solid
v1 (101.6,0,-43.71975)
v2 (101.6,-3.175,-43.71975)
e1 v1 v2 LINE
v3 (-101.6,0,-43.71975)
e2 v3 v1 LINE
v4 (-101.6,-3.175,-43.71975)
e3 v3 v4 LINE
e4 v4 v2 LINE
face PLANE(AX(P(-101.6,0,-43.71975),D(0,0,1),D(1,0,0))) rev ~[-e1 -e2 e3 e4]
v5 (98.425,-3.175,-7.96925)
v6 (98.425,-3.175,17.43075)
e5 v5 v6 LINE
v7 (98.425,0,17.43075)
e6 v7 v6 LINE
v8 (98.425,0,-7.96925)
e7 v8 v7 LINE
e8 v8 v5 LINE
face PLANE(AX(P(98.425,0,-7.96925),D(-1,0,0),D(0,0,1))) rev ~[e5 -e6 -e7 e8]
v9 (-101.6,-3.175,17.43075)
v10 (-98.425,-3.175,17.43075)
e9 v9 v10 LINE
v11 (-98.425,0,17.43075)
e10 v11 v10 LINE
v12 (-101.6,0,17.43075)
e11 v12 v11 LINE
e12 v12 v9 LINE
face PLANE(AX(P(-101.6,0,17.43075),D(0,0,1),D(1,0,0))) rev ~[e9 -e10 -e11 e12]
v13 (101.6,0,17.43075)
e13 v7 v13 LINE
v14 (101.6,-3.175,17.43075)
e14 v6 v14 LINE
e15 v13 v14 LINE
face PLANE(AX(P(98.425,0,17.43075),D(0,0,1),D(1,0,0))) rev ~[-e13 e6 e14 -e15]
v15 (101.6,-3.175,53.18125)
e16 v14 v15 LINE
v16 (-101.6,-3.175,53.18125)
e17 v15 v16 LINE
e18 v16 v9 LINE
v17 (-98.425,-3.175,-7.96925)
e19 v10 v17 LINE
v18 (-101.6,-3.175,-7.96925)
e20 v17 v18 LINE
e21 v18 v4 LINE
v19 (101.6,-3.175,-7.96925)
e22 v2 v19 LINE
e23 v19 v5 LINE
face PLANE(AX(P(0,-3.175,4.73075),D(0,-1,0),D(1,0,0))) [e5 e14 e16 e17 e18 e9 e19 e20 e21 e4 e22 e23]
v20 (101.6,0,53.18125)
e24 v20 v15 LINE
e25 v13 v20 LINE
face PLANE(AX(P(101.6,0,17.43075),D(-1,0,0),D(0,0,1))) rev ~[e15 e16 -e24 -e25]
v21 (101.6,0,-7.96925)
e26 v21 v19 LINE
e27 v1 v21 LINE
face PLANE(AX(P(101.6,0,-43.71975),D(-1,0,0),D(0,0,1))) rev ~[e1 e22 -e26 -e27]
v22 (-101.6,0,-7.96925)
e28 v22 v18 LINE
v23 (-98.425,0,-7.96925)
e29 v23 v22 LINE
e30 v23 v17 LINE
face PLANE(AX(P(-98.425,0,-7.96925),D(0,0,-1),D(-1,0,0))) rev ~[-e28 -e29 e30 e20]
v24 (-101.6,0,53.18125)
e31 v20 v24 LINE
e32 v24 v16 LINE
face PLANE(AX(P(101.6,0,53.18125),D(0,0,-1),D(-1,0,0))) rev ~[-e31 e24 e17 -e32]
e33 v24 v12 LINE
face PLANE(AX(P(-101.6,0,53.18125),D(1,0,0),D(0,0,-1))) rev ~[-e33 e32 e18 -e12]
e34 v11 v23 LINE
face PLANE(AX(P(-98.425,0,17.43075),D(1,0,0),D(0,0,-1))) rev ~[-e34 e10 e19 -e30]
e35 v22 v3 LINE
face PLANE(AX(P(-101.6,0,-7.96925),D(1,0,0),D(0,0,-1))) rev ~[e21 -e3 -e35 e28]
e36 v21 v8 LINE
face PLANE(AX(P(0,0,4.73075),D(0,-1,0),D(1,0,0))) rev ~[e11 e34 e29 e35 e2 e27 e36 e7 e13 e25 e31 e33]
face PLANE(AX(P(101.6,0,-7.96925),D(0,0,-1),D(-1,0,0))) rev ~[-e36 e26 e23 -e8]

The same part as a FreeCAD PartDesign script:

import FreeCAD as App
import Part
import Sketcher
from FreeCAD import Vector
Q = App.Units.Quantity

doc = App.newDocument("Part")
params = doc.addObject("Spreadsheet::Sheet", "Params")
for row, (alias, value) in enumerate([
    ("sketch1_width", "8 in"),
    ("sketch1_height", "1 in"),
    ("sketch1_width2", "0.125 in"),
    ("pad1_length", "0.125 in"),
], start=1):
    params.set(f"A{row}", alias)
    params.set(f"B{row}", "=" + value)
    params.setAlias(f"B{row}", alias)

body = doc.addObject("PartDesign::Body", "Body")

# Sketch on XZ plane
sketch1 = body.newObject("Sketcher::SketchObject", "Sketch")
sketch1.AttachmentSupport = (doc.getObject("XZ_Plane"), [""])
sketch1.MapMode = "FlatFace"
sketch1.addGeometry([
    Part.LineSegment(Vector(-101.6, 53.18125, 0), Vector(-101.6, 17.43075, 0)),  # 0
    Part.LineSegment(Vector(-101.6, 17.43075, 0), Vector(-98.425, 17.43075, 0)),  # 1
    Part.LineSegment(Vector(-98.425, 17.43075, 0), Vector(-98.425, -7.96925, 0)),  # 2
    Part.LineSegment(Vector(-98.425, -7.96925, 0), Vector(-101.6, -7.96925, 0)),  # 3
    Part.LineSegment(Vector(-101.6, -7.96925, 0), Vector(-101.6, -43.71975, 0)),  # 4
    Part.LineSegment(Vector(-101.6, -43.71975, 0), Vector(101.6, -43.71975, 0)),  # 5
    Part.LineSegment(Vector(101.6, -43.71975, 0), Vector(101.6, -7.96925, 0)),  # 6
    Part.LineSegment(Vector(101.6, -7.96925, 0), Vector(98.425, -7.96925, 0)),  # 7
    Part.LineSegment(Vector(98.425, -7.96925, 0), Vector(98.425, 17.43075, 0)),  # 8
    Part.LineSegment(Vector(98.425, 17.43075, 0), Vector(101.6, 17.43075, 0)),  # 9
    Part.LineSegment(Vector(101.6, 17.43075, 0), Vector(101.6, 53.18125, 0)),  # 10
    Part.LineSegment(Vector(101.6, 53.18125, 0), Vector(-101.6, 53.18125, 0)),  # 11
], False)
sketch1.addConstraint([
    Sketcher.Constraint("Coincident", 0, 2, 1, 1),
    Sketcher.Constraint("Coincident", 1, 2, 2, 1),
    Sketcher.Constraint("Coincident", 2, 2, 3, 1),
    Sketcher.Constraint("Coincident", 3, 2, 4, 1),
    Sketcher.Constraint("Coincident", 4, 2, 5, 1),
    Sketcher.Constraint("Coincident", 5, 2, 6, 1),
    Sketcher.Constraint("Coincident", 6, 2, 7, 1),
    Sketcher.Constraint("Coincident", 7, 2, 8, 1),
    Sketcher.Constraint("Coincident", 8, 2, 9, 1),
    Sketcher.Constraint("Coincident", 9, 2, 10, 1),
    Sketcher.Constraint("Coincident", 10, 2, 11, 1),
    Sketcher.Constraint("Coincident", 11, 2, 0, 1),
    Sketcher.Constraint("Vertical", 0),
    Sketcher.Constraint("Horizontal", 1),
    Sketcher.Constraint("Vertical", 2),
    Sketcher.Constraint("Horizontal", 3),
    Sketcher.Constraint("Vertical", 4),
    Sketcher.Constraint("Horizontal", 5),
    Sketcher.Constraint("Vertical", 6),
    Sketcher.Constraint("Horizontal", 7),
    Sketcher.Constraint("Vertical", 8),
    Sketcher.Constraint("Horizontal", 9),
    Sketcher.Constraint("Vertical", 10),
    Sketcher.Constraint("Horizontal", 11),
    Sketcher.Constraint("Symmetric", 3, 2, 6, 2, -2),
    Sketcher.Constraint("Symmetric", 1, 2, 8, 2, -2),
    Sketcher.Constraint("Vertical", 0, 2, 3, 2),
    Sketcher.Constraint("Vertical", 6, 2, 9, 2),
    Sketcher.Constraint("Equal", 0, 4),
    Sketcher.Constraint("DistanceX", 5, 1, 5, 2, Q("8 in")),
    Sketcher.Constraint("DistanceY", 2, 2, 2, 1, Q("1 in")),
    Sketcher.Constraint("DistanceX", 1, 1, 1, 2, Q("0.125 in")),
    Sketcher.Constraint("DistanceY", 0, 2, 0, 1, Q("1.4075 in")),
    Sketcher.Constraint("DistanceY", -1, 1, 10, 2, Q("2.09375 in")),
])
sketch1.setExpression("Constraints[29]", "Params.sketch1_width")
sketch1.setExpression("Constraints[30]", "Params.sketch1_height")
sketch1.setExpression("Constraints[31]", "Params.sketch1_width2")
pad1 = body.newObject("PartDesign::Pad", "Pad")
pad1.Profile = sketch1
pad1.setExpression("Length", "Params.pad1_length")

doc.recompute()
